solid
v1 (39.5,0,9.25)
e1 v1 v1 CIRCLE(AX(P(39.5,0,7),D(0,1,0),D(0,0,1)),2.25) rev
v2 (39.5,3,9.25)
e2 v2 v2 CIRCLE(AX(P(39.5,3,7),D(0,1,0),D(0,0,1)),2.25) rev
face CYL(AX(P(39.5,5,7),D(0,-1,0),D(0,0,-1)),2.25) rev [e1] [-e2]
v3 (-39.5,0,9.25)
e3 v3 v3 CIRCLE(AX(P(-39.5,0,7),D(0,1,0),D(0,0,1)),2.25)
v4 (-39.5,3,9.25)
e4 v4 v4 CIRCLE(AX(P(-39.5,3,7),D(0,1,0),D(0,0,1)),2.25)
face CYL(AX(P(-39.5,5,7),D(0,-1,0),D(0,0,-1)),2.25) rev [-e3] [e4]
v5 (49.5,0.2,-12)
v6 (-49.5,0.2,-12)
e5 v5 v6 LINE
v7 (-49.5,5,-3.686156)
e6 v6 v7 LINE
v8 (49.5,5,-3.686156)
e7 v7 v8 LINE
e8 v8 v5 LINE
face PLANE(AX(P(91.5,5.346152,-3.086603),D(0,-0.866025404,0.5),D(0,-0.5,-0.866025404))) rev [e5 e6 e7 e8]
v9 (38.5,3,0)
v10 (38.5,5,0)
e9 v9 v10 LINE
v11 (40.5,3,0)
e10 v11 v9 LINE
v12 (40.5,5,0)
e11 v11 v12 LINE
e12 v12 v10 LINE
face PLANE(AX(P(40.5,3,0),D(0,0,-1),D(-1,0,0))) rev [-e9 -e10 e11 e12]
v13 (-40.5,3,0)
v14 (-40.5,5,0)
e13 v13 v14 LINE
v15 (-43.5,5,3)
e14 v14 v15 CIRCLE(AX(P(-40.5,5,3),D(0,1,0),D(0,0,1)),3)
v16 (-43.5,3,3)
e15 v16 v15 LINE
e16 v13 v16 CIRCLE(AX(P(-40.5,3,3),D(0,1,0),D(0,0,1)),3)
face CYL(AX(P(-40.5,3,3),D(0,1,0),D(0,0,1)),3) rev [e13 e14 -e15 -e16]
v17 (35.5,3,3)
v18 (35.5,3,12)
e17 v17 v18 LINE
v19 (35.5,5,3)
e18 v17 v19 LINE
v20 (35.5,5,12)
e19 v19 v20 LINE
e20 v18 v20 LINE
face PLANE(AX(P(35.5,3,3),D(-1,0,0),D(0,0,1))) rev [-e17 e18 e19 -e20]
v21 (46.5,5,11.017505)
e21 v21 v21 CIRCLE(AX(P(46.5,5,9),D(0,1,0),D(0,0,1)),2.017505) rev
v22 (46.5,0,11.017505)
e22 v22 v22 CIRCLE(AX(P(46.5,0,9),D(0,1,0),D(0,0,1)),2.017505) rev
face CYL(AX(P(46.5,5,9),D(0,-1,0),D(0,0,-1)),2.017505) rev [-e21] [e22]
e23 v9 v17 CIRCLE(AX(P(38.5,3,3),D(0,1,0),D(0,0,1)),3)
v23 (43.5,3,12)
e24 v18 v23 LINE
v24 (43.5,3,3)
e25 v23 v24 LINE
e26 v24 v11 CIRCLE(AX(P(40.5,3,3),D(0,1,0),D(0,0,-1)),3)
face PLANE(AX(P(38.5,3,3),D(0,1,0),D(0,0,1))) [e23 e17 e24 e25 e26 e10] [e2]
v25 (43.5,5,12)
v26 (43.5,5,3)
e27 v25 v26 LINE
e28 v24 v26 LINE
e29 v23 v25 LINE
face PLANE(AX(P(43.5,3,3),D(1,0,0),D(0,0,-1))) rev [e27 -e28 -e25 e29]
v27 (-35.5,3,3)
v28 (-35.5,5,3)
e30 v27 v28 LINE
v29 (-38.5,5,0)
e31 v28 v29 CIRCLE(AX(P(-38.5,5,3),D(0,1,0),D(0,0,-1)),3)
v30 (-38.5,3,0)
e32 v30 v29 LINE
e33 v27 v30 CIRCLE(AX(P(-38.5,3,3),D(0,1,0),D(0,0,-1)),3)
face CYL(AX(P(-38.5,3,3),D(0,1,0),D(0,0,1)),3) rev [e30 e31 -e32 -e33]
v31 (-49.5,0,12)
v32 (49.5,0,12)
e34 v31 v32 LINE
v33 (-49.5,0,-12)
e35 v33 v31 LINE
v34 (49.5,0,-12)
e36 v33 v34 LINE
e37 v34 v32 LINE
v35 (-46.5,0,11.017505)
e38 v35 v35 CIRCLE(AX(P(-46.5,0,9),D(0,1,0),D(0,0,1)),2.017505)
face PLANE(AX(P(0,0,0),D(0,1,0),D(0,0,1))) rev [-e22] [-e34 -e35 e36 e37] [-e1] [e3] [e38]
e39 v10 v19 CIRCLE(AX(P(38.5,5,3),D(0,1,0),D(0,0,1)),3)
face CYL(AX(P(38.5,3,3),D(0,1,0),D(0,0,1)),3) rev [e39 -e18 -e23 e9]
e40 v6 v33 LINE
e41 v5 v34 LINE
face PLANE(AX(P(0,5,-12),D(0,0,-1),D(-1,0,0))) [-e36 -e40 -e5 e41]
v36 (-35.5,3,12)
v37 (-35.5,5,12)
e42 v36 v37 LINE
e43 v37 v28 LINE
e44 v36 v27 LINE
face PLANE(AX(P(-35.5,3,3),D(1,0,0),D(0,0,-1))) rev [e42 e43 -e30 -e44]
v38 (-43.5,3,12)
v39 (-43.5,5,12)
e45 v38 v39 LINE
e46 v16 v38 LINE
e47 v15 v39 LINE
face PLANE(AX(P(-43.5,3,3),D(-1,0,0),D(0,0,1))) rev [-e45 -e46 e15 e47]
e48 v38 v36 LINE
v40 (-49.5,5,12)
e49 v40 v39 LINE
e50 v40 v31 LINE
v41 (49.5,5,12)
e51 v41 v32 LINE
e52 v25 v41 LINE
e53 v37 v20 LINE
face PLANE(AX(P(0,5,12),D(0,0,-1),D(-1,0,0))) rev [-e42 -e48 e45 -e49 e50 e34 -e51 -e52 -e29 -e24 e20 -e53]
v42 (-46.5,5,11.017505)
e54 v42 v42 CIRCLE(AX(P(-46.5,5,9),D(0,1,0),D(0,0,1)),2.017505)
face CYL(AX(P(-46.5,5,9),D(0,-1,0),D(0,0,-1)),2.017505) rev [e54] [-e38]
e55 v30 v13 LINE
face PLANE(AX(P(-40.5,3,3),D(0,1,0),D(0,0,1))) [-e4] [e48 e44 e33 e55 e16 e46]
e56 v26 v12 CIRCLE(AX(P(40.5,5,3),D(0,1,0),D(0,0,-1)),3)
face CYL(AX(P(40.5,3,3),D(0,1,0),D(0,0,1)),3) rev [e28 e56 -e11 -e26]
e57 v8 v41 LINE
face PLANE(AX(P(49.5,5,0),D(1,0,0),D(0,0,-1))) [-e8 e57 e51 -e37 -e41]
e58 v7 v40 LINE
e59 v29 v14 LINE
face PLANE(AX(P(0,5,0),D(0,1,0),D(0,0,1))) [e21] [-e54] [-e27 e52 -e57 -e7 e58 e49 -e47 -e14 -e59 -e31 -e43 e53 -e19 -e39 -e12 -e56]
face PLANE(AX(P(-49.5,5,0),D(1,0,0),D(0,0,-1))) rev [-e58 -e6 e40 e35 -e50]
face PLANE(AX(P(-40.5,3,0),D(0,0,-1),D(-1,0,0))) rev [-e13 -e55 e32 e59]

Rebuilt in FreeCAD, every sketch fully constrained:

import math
import FreeCAD as App
import Part
import Sketcher
from FreeCAD import Vector
Q = App.Units.Quantity


def add_polygon(sketch, points):
    """Adds a closed chain of lines whose ends are joined by coincident constraints."""
    first, n = sketch.GeometryCount, len(points)
    for a, b in zip(points, points[1:] + points[:1]):
        sketch.addGeometry(Part.LineSegment(App.Vector(*a, 0), App.Vector(*b, 0)), False)
    for i in range(n):
        sketch.addConstraint(Sketcher.Constraint("Coincident", first + i, 2, first + (i + 1) % n, 1))

doc = App.newDocument("Part")
body = doc.addObject("PartDesign::Body", "Body")

# Sketch on XZ plane
sketch1 = body.newObject("Sketcher::SketchObject", "Sketch")
sketch1.AttachmentSupport = (doc.getObject("XZ_Plane"), [""])
sketch1.MapMode = "FlatFace"
add_polygon(sketch1, [(-49.5, -12), (-49.5, 12), (49.5, 12), (49.5, -12)])  # lines 0-3
sketch1.addGeometry(Part.Circle(Vector(-46.5, 9, 0), Vector(0, 0, 1), 2), False)  # 4
sketch1.addGeometry(Part.Circle(Vector(46.5, 9, 0), Vector(0, 0, 1), 2), False)  # 5
sketch1.addGeometry(Part.Circle(Vector(-39.5, 7, 0), Vector(0, 0, 1), 2.2), False)  # 6
sketch1.addGeometry(Part.Circle(Vector(39.5, 7, 0), Vector(0, 0, 1), 2.2), False)  # 7
sketch1.addConstraint([
    Sketcher.Constraint("Vertical", 0),
    Sketcher.Constraint("Horizontal", 1),
    Sketcher.Constraint("Vertical", 2),
    Sketcher.Constraint("Horizontal", 3),
    Sketcher.Constraint("Equal", 4, 5),
    Sketcher.Constraint("Equal", 6, 7),
    Sketcher.Constraint("Symmetric", 0, 2, 2, 2, -1, 1),
    Sketcher.Constraint("Symmetric", 4, 3, 5, 3, -2),
    Sketcher.Constraint("Symmetric", 6, 3, 7, 3, -2),
    Sketcher.Constraint("Diameter", 6, 4.5),
    Sketcher.Constraint("DistanceX", 1, 1, 1, 2, 99.0),
    Sketcher.Constraint("DistanceY", 0, 1, 0, 2, 24.0),
    Sketcher.Constraint("DistanceY", -1, 1, 4, 3, 9.0),
    Sketcher.Constraint("DistanceY", -1, 1, 6, 3, 7.0),
    Sketcher.Constraint("DistanceX", 4, 3, 5, 3, 93.0),
    Sketcher.Constraint("DistanceX", 4, 3, 6, 3, 7.0),
    Sketcher.Constraint("Diameter", 4, 4.03501),
])
pad1 = body.newObject("PartDesign::Pad", "Pad")
pad1.Profile = sketch1
pad1.Length = 5
pad1.Reversed = True

# Sketch on XZ plane
sketch2 = body.newObject("Sketcher::SketchObject", "Sketch001")
sketch2.AttachmentSupport = (doc.getObject("XZ_Plane"), [""])
sketch2.MapMode = "FlatFace"
sketch2.AttachmentOffset = App.Placement(Vector(0, 0, -5), App.Rotation())
sketch2.addGeometry([
    Part.LineSegment(Vector(-43.5, 3, 0), Vector(-43.5, 12, 0)),  # 0
    Part.LineSegment(Vector(-43.5, 12, 0), Vector(-35.5, 12, 0)),  # 1
    Part.LineSegment(Vector(-35.5, 12, 0), Vector(-35.5, 3, 0)),  # 2
    Part.ArcOfCircle(Part.Circle(Vector(-38.5, 3, 0), Vector(0, 0, 1), 3), math.radians(-90), math.radians(0)),  # 3
    Part.LineSegment(Vector(-38.5, 0, 0), Vector(-40.5, 0, 0)),  # 4
    Part.ArcOfCircle(Part.Circle(Vector(-40.5, 3, 0), Vector(0, 0, 1), 3), math.radians(180), math.radians(270)),  # 5
    Part.LineSegment(Vector(40.5, 0, 0), Vector(38.5, 0, 0)),  # 6
    Part.ArcOfCircle(Part.Circle(Vector(38.5, 3, 0), Vector(0, 0, 1), 3), math.radians(180), math.radians(270)),  # 7
    Part.LineSegment(Vector(35.5, 3, 0), Vector(35.5, 12, 0)),  # 8
    Part.LineSegment(Vector(35.5, 12, 0), Vector(43.5, 12, 0)),  # 9
    Part.LineSegment(Vector(43.5, 12, 0), Vector(43.5, 3, 0)),  # 10
    Part.ArcOfCircle(Part.Circle(Vector(40.5, 3, 0), Vector(0, 0, 1), 3), math.radians(-90), math.radians(0)),  # 11
], False)
sketch2.addConstraint([
    Sketcher.Constraint("Coincident", 0, 2, 1, 1),
    Sketcher.Constraint("Coincident", 1, 2, 2, 1),
    Sketcher.Constraint("Tangent", 2, 2, 3, 2),
    Sketcher.Constraint("Tangent", 3, 1, 4, 1),
    Sketcher.Constraint("Tangent", 4, 2, 5, 2),
    Sketcher.Constraint("Tangent", 5, 1, 0, 1),
    Sketcher.Constraint("Tangent", 6, 2, 7, 2),
    Sketcher.Constraint("Tangent", 7, 1, 8, 1),
    Sketcher.Constraint("Coincident", 8, 2, 9, 1),
    Sketcher.Constraint("Coincident", 9, 2, 10, 1),
    Sketcher.Constraint("Tangent", 10, 2, 11, 2),
    Sketcher.Constraint("Tangent", 11, 1, 6, 1),
    Sketcher.Constraint("Vertical", 0),
    Sketcher.Constraint("Horizontal", 1),
    Sketcher.Constraint("Vertical", 2),
    Sketcher.Constraint("Horizontal", 4),
    Sketcher.Constraint("Horizontal", 6),
    Sketcher.Constraint("Vertical", 8),
    Sketcher.Constraint("Horizontal", 9),
    Sketcher.Constraint("Vertical", 10),
    Sketcher.Constraint("Equal", 3, 5),
    Sketcher.Constraint("Equal", 5, 7),
    Sketcher.Constraint("Equal", 7, 11),
    Sketcher.Constraint("Symmetric", 3, 1, 6, 2, -1, 1),
    Sketcher.Constraint("Symmetric", 5, 3, 11, 3, -2),
    Sketcher.Constraint("Horizontal", 1, 2, 8, 2),
    Sketcher.Constraint("Radius", 3, 3.0),
    Sketcher.Constraint("DistanceX", 1, 1, 1, 2, 8.0),
    Sketcher.Constraint("DistanceY", 0, 1, 0, 2, 9.0),
    Sketcher.Constraint("DistanceX", 3, 3, 7, 3, 77.0),
])
pocket1 = body.newObject("PartDesign::Pocket", "Pocket")
pocket1.Profile = sketch2
pocket1.Length = 2
pocket1.Reversed = True

# Sketch on YZ plane
sketch3 = body.newObject("Sketcher::SketchObject", "Sketch002")
sketch3.AttachmentSupport = (doc.getObject("YZ_Plane"), [""])
sketch3.MapMode = "FlatFace"
sketch3.AttachmentOffset = App.Placement(Vector(0, 0, -49.5), App.Rotation())
add_polygon(sketch3, [(0.2, -12), (3.6, -6.1), (5, -3.7), (5.4, -3), (5.4, -12.8), (0.2, -12.8)])  # lines 0-5
sketch3.addConstraint([
    Sketcher.Constraint("Vertical", 3),
    Sketcher.Constraint("Horizontal", 4),
    Sketcher.Constraint("Vertical", 5),
    Sketcher.Constraint("Parallel", 0, 1),
    Sketcher.Constraint("Parallel", 1, 2),
    Sketcher.Constraint("Angle", 0, Q("60 deg")),
    Sketcher.Constraint("DistanceX", -1, 1, 1, 2, 5.0),
    Sketcher.Constraint("DistanceY", 5, 2, -1, 1, 12.0),
    Sketcher.Constraint("DistanceX", -1, 1, 4, 2, 0.2),
    Sketcher.Constraint("Distance", 0, 6.811699),
    Sketcher.Constraint("DistanceY", 5, 1, 5, 2, 0.757171),
    Sketcher.Constraint("DistanceX", 4, 2, 4, 1, 5.173143),
])
pocket2 = body.newObject("PartDesign::Pocket", "Pocket001")
pocket2.Profile = sketch3
pocket2.Length = 141
pocket2.Reversed = True

doc.recompute()
